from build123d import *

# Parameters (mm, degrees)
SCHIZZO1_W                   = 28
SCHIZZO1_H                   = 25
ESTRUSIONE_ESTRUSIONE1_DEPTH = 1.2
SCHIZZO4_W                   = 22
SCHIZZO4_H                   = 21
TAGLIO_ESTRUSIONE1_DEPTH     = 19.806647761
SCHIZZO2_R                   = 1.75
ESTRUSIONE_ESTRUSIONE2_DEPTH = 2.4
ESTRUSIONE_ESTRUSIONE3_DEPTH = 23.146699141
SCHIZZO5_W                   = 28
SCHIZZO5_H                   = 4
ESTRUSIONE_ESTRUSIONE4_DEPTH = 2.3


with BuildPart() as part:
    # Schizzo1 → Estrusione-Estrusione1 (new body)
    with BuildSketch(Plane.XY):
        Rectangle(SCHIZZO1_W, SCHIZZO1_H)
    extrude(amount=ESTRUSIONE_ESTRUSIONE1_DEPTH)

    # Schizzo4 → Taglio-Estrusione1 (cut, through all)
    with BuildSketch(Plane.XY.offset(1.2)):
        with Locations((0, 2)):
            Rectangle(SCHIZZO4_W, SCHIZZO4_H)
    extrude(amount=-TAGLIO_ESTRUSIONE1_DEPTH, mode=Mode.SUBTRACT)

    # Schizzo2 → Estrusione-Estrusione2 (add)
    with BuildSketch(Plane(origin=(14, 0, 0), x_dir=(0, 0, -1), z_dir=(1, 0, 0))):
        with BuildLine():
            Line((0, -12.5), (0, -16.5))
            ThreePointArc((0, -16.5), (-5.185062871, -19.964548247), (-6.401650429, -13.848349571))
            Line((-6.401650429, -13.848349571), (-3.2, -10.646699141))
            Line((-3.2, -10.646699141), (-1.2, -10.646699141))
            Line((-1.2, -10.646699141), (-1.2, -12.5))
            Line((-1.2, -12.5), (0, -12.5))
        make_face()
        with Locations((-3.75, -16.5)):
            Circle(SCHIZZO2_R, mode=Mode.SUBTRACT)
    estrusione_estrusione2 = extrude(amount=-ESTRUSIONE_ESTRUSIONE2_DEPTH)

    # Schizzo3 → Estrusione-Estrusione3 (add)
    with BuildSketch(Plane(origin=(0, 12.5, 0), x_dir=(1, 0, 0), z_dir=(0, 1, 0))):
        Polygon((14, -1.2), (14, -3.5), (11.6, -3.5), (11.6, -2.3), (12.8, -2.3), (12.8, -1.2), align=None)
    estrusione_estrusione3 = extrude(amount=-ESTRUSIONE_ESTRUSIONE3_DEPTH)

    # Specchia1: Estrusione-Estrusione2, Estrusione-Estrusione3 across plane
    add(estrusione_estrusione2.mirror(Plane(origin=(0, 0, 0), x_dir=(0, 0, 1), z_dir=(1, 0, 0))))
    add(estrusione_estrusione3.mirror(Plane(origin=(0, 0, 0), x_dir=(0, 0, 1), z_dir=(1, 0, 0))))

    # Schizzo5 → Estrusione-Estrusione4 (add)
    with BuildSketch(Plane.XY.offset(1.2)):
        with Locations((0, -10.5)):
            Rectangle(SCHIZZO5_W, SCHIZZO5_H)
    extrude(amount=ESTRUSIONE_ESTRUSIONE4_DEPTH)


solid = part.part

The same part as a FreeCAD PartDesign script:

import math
import FreeCAD as App
import Part
import Sketcher
Q = App.Units.Quantity


def add_polygon(sketch, points):
    """Adds a closed chain of lines whose ends are joined by coincident constraints."""
    first, n = sketch.GeometryCount, len(points)
    for a, b in zip(points, points[1:] + points[:1]):
        sketch.addGeometry(Part.LineSegment(App.Vector(*a, 0), App.Vector(*b, 0)), False)
    for i in range(n):
        sketch.addConstraint(Sketcher.Constraint("Coincident", first + i, 2, first + (i + 1) % n, 1))

doc = App.newDocument("Part")
body = doc.addObject("PartDesign::Body", "Body")

# Sketch on XY plane
sketch1 = doc.addObject("Sketcher::SketchObject", "Sketch")
body.addObject(sketch1)
sketch1.AttachmentSupport = (doc.XY_Plane, [""])
sketch1.MapMode = "FlatFace"
add_polygon(sketch1, [(-14, 12.5), (-14, -12.5), (14, -12.5), (14, 12.5)])  # lines 0-3
sketch1.addConstraint([
    Sketcher.Constraint("Vertical", 0),
    Sketcher.Constraint("Horizontal", 1),
    Sketcher.Constraint("Vertical", 2),
    Sketcher.Constraint("Horizontal", 3),
    Sketcher.Constraint("Symmetric", 0, 2, 2, 2, -1, 1),
    Sketcher.Constraint("DistanceX", 1, 1, 1, 2, Q("28 mm")),
    Sketcher.Constraint("DistanceY", 0, 2, 0, 1, Q("25 mm")),
])
pad1 = doc.addObject("PartDesign::Pad", "Pad")
body.addObject(pad1)
pad1.Profile = sketch1
pad1.Length = 1.2

# Sketch on XY plane
sketch2 = doc.addObject("Sketcher::SketchObject", "Sketch001")
body.addObject(sketch2)
sketch2.AttachmentSupport = (doc.XY_Plane, [""])
sketch2.MapMode = "FlatFace"
sketch2.AttachmentOffset = App.Placement(App.Vector(0, 0, 1.2), App.Rotation())
add_polygon(sketch2, [(-11, 12.5), (-11, -8.5), (11, -8.5), (11, 12.5)])  # lines 0-3
sketch2.addConstraint([
    Sketcher.Constraint("Vertical", 0),
    Sketcher.Constraint("Horizontal", 1),
    Sketcher.Constraint("Vertical", 2),
    Sketcher.Constraint("Horizontal", 3),
    Sketcher.Constraint("DistanceX", 1, 1, 1, 2, Q("22 mm")),
    Sketcher.Constraint("DistanceY", 0, 2, 0, 1, Q("21 mm")),
    Sketcher.Constraint("DistanceX", 0, 2, -1, 1, Q("11 mm")),
    Sketcher.Constraint("DistanceY", 0, 2, -1, 1, Q("8.5 mm")),
])
pocket1 = doc.addObject("PartDesign::Pocket", "Pocket")
body.addObject(pocket1)
pocket1.Profile = sketch2
pocket1.Type = "ThroughAll"

# Sketch on YZ plane
sketch3 = doc.addObject("Sketcher::SketchObject", "Sketch002")
body.addObject(sketch3)
sketch3.AttachmentSupport = (doc.YZ_Plane, [""])
sketch3.MapMode = "FlatFace"
sketch3.AttachmentOffset = App.Placement(App.Vector(0, 0, 14), App.Rotation())
sketch3.addGeometry([
    Part.LineSegment(App.Vector(-16.5, 0, 0), App.Vector(-12.5, 0, 0)),  # 0
    Part.LineSegment(App.Vector(-12.5, 0, 0), App.Vector(-12.5, 1.2, 0)),  # 1
    Part.LineSegment(App.Vector(-12.5, 1.2, 0), App.Vector(-10.646699, 1.2, 0)),  # 2
    Part.LineSegment(App.Vector(-10.646699, 1.2, 0), App.Vector(-10.646699, 3.2, 0)),  # 3
    Part.LineSegment(App.Vector(-10.646699, 3.2, 0), App.Vector(-13.84835, 6.40165, 0)),  # 4
    Part.ArcOfCircle(Part.Circle(App.Vector(-16.5, 3.75, 0), App.Vector(0, 0, 1), 3.75), math.radians(45), math.radians(270)),  # 5
    Part.Circle(App.Vector(-16.5, 3.75, 0), App.Vector(0, 0, 1), 1.75),  # 6
], False)
sketch3.addConstraint([
    Sketcher.Constraint("Coincident", 0, 2, 1, 1),
    Sketcher.Constraint("Coincident", 1, 2, 2, 1),
    Sketcher.Constraint("Coincident", 2, 2, 3, 1),
    Sketcher.Constraint("Coincident", 3, 2, 4, 1),
    Sketcher.Constraint("Tangent", 4, 2, 5, 1),
    Sketcher.Constraint("Tangent", 5, 2, 0, 1),
    Sketcher.Constraint("Horizontal", 0),
    Sketcher.Constraint("Vertical", 1),
    Sketcher.Constraint("Horizontal", 2),
    Sketcher.Constraint("Vertical", 3),
    Sketcher.Constraint("Coincident", 6, 3, 5, 3),
    Sketcher.Constraint("PointOnObject", 0, 2, -1),
    Sketcher.Constraint("Diameter", 6, Q("3.5 mm")),
    Sketcher.Constraint("DistanceX", 0, 1, 0, 2, Q("4 mm")),
    Sketcher.Constraint("DistanceY", 3, 1, 3, 2, Q("2 mm")),
    Sketcher.Constraint("Angle", 4, Q("135 deg")),
    Sketcher.Constraint("Radius", 5, Q("3.75 mm")),
    Sketcher.Constraint("DistanceY", 1, 1, 1, 2, Q("1.2 mm")),
    Sketcher.Constraint("DistanceX", 5, 3, -1, 1, Q("16.5 mm")),
])
pad2 = doc.addObject("PartDesign::Pad", "Pad001")
body.addObject(pad2)
pad2.Profile = sketch3
pad2.Length = 2.4
pad2.Reversed = True

# Sketch on XZ plane
sketch4 = doc.addObject("Sketcher::SketchObject", "Sketch003")
body.addObject(sketch4)
sketch4.AttachmentSupport = (doc.XZ_Plane, [""])
sketch4.MapMode = "FlatFace"
sketch4.AttachmentOffset = App.Placement(App.Vector(0, 0, -12.5), App.Rotation())
add_polygon(sketch4, [(14, 3.5), (14, 1.2), (12.8, 1.2), (12.8, 2.3), (11.6, 2.3), (11.6, 3.5)])  # lines 0-5
sketch4.addConstraint([
    Sketcher.Constraint("Vertical", 0),
    Sketcher.Constraint("Horizontal", 1),
    Sketcher.Constraint("Vertical", 2),
    Sketcher.Constraint("Horizontal", 3),
    Sketcher.Constraint("Vertical", 4),
    Sketcher.Constraint("Horizontal", 5),
    Sketcher.Constraint("Equal", 1, 3),
    Sketcher.Constraint("Equal", 3, 4),
    Sketcher.Constraint("DistanceX", 1, 2, 1, 1, Q("1.2 mm")),
    Sketcher.Constraint("DistanceY", 0, 2, 0, 1, Q("2.3 mm")),
    Sketcher.Constraint("DistanceX", -1, 1, 0, 2, Q("14 mm")),
    Sketcher.Constraint("DistanceY", -1, 1, 0, 2, Q("1.2 mm")),
])
pad3 = doc.addObject("PartDesign::Pad", "Pad002")
body.addObject(pad3)
pad3.Profile = sketch4
pad3.Length = 23.146699
doc.recompute()

mirrored = doc.addObject("PartDesign::Mirrored", "Mirrored")
body.addObject(mirrored)
mirrored.Originals = [pad2, pad3]
mirrored.MirrorPlane = (doc.YZ_Plane, [""])
body.Tip = mirrored

# Sketch on XY plane
sketch5 = doc.addObject("Sketcher::SketchObject", "Sketch004")
body.addObject(sketch5)
sketch5.AttachmentSupport = (doc.XY_Plane, [""])
sketch5.MapMode = "FlatFace"
sketch5.AttachmentOffset = App.Placement(App.Vector(0, 0, 1.2), App.Rotation())
add_polygon(sketch5, [(-14, -8.5), (-14, -12.5), (14, -12.5), (14, -8.5)])  # lines 0-3
sketch5.addConstraint([
    Sketcher.Constraint("Vertical", 0),
    Sketcher.Constraint("Horizontal", 1),
    Sketcher.Constraint("Vertical", 2),
    Sketcher.Constraint("Horizontal", 3),
    Sketcher.Constraint("DistanceX", 1, 1, 1, 2, Q("28 mm")),
    Sketcher.Constraint("DistanceY", 0, 2, 0, 1, Q("4 mm")),
    Sketcher.Constraint("DistanceX", 0, 2, -1, 1, Q("14 mm")),
    Sketcher.Constraint("DistanceY", 0, 2, -1, 1, Q("12.5 mm")),
])
pad4 = doc.addObject("PartDesign::Pad", "Pad003")
body.addObject(pad4)
pad4.Profile = sketch5
pad4.Length = 2.3

doc.recompute()
